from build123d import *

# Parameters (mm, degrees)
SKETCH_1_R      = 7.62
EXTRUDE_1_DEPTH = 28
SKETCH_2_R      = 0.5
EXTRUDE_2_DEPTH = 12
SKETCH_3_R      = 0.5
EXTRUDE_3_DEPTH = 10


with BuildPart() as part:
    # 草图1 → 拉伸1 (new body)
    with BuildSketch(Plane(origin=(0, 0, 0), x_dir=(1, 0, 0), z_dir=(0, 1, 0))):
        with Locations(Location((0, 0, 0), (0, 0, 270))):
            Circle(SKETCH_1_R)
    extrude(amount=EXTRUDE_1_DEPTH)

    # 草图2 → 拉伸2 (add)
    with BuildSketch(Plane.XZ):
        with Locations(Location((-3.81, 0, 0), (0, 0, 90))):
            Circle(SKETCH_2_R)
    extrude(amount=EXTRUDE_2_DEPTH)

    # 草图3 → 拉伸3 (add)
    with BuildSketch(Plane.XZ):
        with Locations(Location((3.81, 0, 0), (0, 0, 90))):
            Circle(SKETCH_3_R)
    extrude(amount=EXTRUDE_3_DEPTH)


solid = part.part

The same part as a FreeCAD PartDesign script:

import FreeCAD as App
import Part
import Sketcher
Q = App.Units.Quantity

doc = App.newDocument("Part")
body = doc.addObject("PartDesign::Body", "Body")

sketch1 = body.newObject("Sketcher::SketchObject", "Sketch")
sketch1.AttachmentSupport = (doc.getObject("XZ_Plane"), [""])
sketch1.MapMode = "FlatFace"
sketch1.addGeometry(Part.Circle(App.Vector(0, 0, 0), App.Vector(0, 0, 1), 7.62), False)
sketch1.addConstraint(Sketcher.Constraint("Coincident", 0, 3, -1, 1))
sketch1.addConstraint(Sketcher.Constraint("Diameter", 0, Q("15.24 mm")))
pad1 = body.newObject("PartDesign::Pad", "Pad")
pad1.Profile = sketch1
pad1.Length = 28
pad1.Reversed = True

sketch2 = body.newObject("Sketcher::SketchObject", "Sketch001")
sketch2.AttachmentSupport = (doc.getObject("XZ_Plane"), [""])
sketch2.MapMode = "FlatFace"
sketch2.addGeometry(Part.Circle(App.Vector(-3.81, 0, 0), App.Vector(0, 0, 1), 0.5), False)
sketch2.addConstraint(Sketcher.Constraint("PointOnObject", 0, 3, -1))
sketch2.addConstraint(Sketcher.Constraint("Diameter", 0, Q("1 mm")))
sketch2.addConstraint(Sketcher.Constraint("DistanceX", 0, 3, -1, 1, Q("3.81 mm")))
pad2 = body.newObject("PartDesign::Pad", "Pad001")
pad2.Profile = sketch2
pad2.Length = 12

sketch3 = body.newObject("Sketcher::SketchObject", "Sketch002")
sketch3.AttachmentSupport = (doc.getObject("XZ_Plane"), [""])
sketch3.MapMode = "FlatFace"
sketch3.addGeometry(Part.Circle(App.Vector(3.81, 0, 0), App.Vector(0, 0, 1), 0.5), False)
sketch3.addConstraint(Sketcher.Constraint("PointOnObject", 0, 3, -1))
sketch3.addConstraint(Sketcher.Constraint("Diameter", 0, Q("1 mm")))
sketch3.addConstraint(Sketcher.Constraint("DistanceX", -1, 1, 0, 3, Q("3.81 mm")))
pad3 = body.newObject("PartDesign::Pad", "Pad002")
pad3.Profile = sketch3
pad3.Length = 10

doc.recompute()
